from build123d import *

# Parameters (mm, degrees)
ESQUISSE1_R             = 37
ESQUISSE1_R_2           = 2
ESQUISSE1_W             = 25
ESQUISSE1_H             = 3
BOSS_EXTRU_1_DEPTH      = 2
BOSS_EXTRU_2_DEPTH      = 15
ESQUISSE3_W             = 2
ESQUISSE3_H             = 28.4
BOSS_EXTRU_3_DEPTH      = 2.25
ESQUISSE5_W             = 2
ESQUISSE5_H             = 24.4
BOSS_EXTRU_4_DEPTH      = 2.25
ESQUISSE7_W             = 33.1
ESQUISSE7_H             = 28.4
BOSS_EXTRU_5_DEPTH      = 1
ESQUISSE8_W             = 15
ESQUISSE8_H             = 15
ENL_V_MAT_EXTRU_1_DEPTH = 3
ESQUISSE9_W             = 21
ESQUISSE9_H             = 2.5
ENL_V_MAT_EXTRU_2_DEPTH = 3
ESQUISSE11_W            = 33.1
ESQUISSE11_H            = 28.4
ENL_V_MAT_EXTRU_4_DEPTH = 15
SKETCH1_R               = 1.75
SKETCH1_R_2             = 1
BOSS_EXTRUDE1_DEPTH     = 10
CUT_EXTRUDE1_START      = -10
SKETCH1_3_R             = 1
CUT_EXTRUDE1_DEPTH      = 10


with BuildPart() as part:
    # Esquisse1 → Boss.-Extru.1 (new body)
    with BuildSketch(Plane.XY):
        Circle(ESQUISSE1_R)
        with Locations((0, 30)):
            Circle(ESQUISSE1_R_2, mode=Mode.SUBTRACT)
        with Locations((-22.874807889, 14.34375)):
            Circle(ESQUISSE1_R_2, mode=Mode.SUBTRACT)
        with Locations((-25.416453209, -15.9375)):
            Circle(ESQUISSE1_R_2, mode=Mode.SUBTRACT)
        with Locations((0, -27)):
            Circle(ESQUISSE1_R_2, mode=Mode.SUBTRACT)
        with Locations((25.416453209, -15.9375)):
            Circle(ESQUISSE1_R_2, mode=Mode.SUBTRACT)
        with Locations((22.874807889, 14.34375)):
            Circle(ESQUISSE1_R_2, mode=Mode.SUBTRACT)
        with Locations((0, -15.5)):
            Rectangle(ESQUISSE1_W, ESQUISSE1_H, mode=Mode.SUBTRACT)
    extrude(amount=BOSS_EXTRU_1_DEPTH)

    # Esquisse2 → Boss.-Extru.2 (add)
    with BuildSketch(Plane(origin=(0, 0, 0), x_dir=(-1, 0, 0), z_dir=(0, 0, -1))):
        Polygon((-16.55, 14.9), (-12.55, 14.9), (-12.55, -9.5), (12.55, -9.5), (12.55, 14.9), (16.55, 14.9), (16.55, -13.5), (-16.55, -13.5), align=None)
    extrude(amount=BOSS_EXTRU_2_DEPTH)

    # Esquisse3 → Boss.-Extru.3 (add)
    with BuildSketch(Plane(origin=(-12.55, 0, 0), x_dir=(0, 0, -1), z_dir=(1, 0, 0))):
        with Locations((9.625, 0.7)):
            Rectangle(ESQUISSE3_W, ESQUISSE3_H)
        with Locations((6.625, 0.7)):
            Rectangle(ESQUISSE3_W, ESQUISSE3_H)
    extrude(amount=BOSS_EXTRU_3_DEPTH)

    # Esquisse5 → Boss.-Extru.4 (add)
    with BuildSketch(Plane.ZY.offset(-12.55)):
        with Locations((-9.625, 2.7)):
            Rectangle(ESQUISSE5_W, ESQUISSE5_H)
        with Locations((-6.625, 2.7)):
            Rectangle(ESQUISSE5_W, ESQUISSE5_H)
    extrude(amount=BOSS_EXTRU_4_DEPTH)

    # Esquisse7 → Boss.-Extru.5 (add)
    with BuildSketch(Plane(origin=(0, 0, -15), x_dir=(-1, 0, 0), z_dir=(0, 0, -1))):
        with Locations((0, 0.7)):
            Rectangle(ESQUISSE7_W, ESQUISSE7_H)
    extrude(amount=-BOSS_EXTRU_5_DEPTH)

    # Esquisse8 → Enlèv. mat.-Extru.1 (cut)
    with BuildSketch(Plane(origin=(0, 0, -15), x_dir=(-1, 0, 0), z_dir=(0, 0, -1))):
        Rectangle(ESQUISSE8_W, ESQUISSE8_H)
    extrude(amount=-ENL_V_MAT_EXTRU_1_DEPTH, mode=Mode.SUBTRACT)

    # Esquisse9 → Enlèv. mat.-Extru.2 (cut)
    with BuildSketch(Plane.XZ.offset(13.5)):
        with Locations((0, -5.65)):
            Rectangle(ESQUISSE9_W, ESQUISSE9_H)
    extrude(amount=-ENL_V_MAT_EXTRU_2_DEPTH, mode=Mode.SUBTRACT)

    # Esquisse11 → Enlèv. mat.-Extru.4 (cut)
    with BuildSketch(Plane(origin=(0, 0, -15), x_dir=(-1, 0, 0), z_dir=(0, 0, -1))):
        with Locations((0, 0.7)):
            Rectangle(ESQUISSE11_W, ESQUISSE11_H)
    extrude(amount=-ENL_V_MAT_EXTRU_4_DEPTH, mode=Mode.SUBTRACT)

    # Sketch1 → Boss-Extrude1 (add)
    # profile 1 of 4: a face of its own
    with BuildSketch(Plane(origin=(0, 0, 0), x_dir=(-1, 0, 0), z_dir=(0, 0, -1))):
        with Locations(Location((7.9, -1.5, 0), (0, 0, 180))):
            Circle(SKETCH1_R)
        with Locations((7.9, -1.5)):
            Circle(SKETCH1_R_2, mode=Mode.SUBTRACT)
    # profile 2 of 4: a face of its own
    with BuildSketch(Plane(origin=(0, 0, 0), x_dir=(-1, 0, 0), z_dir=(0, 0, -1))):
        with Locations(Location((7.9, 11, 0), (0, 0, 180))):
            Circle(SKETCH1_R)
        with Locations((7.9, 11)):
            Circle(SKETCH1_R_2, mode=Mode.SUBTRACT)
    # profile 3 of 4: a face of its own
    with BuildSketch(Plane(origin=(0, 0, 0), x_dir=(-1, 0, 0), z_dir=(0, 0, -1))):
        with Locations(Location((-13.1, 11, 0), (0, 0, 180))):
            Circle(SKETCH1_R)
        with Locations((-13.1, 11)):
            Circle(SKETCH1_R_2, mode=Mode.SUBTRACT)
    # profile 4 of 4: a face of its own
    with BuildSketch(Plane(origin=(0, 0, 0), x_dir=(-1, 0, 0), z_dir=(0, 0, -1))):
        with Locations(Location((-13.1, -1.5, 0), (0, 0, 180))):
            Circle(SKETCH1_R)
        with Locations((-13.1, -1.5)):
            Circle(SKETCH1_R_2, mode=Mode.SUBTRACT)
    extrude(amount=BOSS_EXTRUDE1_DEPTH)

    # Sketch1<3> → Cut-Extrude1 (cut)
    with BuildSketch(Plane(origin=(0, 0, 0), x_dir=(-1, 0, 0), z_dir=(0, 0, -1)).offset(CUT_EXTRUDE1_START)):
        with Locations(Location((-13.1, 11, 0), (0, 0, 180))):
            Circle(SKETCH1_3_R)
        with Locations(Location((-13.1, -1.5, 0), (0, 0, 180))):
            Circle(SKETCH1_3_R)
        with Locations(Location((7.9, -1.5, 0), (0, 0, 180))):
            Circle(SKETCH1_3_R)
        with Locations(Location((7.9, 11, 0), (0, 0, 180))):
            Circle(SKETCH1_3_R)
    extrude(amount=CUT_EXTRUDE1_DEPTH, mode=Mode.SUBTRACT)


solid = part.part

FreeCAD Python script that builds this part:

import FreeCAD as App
import Part
import Sketcher
from FreeCAD import Vector

doc = App.newDocument("Part")
body = doc.addObject("PartDesign::Body", "Body")

# Sketch on XY plane
sketch1 = body.newObject("Sketcher::SketchObject", "Sketch")
sketch1.AttachmentSupport = (doc.getObject("XY_Plane"), [""])
sketch1.MapMode = "FlatFace"
sketch1.addGeometry([
    Part.Circle(Vector(0, 0, 0), Vector(0, 0, 1), 37),  # 0
    Part.Circle(Vector(-25.4, -15.9, 0), Vector(0, 0, 1), 2),  # 1
    Part.LineSegment(Vector(12.5, -17, 0), Vector(-12.5, -17, 0)),  # 2
    Part.LineSegment(Vector(-12.5, -17, 0), Vector(-12.5, -14, 0)),  # 3
    Part.LineSegment(Vector(-12.5, -14, 0), Vector(12.5, -14, 0)),  # 4
    Part.LineSegment(Vector(12.5, -14, 0), Vector(12.5, -17, 0)),  # 5
    Part.Circle(Vector(0, -27, 0), Vector(0, 0, 1), 2),  # 6
    Part.Circle(Vector(25.4, -15.9, 0), Vector(0, 0, 1), 2),  # 7
    Part.Circle(Vector(-22.9, 14.3, 0), Vector(0, 0, 1), 2),  # 8
    Part.Circle(Vector(22.9, 14.3, 0), Vector(0, 0, 1), 2),  # 9
    Part.Circle(Vector(0, 30, 0), Vector(0, 0, 1), 2),  # 10
], False)
sketch1.addConstraint([
    Sketcher.Constraint("Coincident", 2, 2, 3, 1),
    Sketcher.Constraint("Coincident", 3, 2, 4, 1),
    Sketcher.Constraint("Coincident", 4, 2, 5, 1),
    Sketcher.Constraint("Coincident", 5, 2, 2, 1),
    Sketcher.Constraint("Horizontal", 2),
    Sketcher.Constraint("Vertical", 3),
    Sketcher.Constraint("Horizontal", 4),
    Sketcher.Constraint("Vertical", 5),
    Sketcher.Constraint("Coincident", 0, 3, -1, 1),
    Sketcher.Constraint("Equal", 1, 6),
    Sketcher.Constraint("Equal", 6, 7),
    Sketcher.Constraint("Equal", 7, 8),
    Sketcher.Constraint("Equal", 8, 9),
    Sketcher.Constraint("Equal", 9, 10),
    Sketcher.Constraint("Symmetric", 1, 3, 7, 3, -2),
    Sketcher.Constraint("Symmetric", 8, 3, 9, 3, -2),
    Sketcher.Constraint("PointOnObject", 6, 3, -2),
    Sketcher.Constraint("PointOnObject", 10, 3, -2),
    Sketcher.Constraint("Diameter", 0, 74.0),
    Sketcher.Constraint("Diameter", 1, 4.0),
    Sketcher.Constraint("DistanceX", 2, 2, 2, 1, 25.0),
    Sketcher.Constraint("DistanceY", 3, 1, 3, 2, 3.0),
    Sketcher.Constraint("DistanceY", 6, 3, -1, 1, 27.0),
    Sketcher.Constraint("DistanceY", -1, 1, 10, 3, 30.0),
    Sketcher.Constraint("DistanceY", 2, 2, -1, 1, 17.0),
    Sketcher.Constraint("DistanceX", 2, 2, -1, 1, 12.5),
    Sketcher.Constraint("DistanceY", 1, 3, -1, 1, 15.9375),
    Sketcher.Constraint("DistanceY", -1, 1, 8, 3, 14.34375),
    Sketcher.Constraint("DistanceX", 8, 3, 7, 3, 48.291261),
    Sketcher.Constraint("DistanceX", 1, 3, -1, 1, 25.416453),
])
pad1 = body.newObject("PartDesign::Pad", "Pad")
pad1.Profile = sketch1
pad1.Length = 2

# Sketch on XY plane
sketch2 = body.newObject("Sketcher::SketchObject", "Sketch001")
sketch2.AttachmentSupport = (doc.getObject("XY_Plane"), [""])
sketch2.MapMode = "FlatFace"
sketch2.addGeometry([
    Part.LineSegment(Vector(12.6, 14.9, 0), Vector(16.6, 14.9, 0)),  # 0
    Part.LineSegment(Vector(16.6, 14.9, 0), Vector(16.6, -13.5, 0)),  # 1
    Part.LineSegment(Vector(16.6, -13.5, 0), Vector(-16.6, -13.5, 0)),  # 2
    Part.LineSegment(Vector(-16.6, -13.5, 0), Vector(-16.6, 14.9, 0)),  # 3
    Part.LineSegment(Vector(-16.6, 14.9, 0), Vector(-12.6, 14.9, 0)),  # 4
    Part.LineSegment(Vector(-12.6, 14.9, 0), Vector(-12.6, -9.5, 0)),  # 5
    Part.LineSegment(Vector(-12.6, -9.5, 0), Vector(12.6, -9.5, 0)),  # 6
    Part.LineSegment(Vector(12.6, -9.5, 0), Vector(12.6, 14.9, 0)),  # 7
], False)
sketch2.addConstraint([
    Sketcher.Constraint("Coincident", 0, 2, 1, 1),
    Sketcher.Constraint("Coincident", 1, 2, 2, 1),
    Sketcher.Constraint("Coincident", 2, 2, 3, 1),
    Sketcher.Constraint("Coincident", 3, 2, 4, 1),
    Sketcher.Constraint("Coincident", 4, 2, 5, 1),
    Sketcher.Constraint("Coincident", 5, 2, 6, 1),
    Sketcher.Constraint("Coincident", 6, 2, 7, 1),
    Sketcher.Constraint("Coincident", 7, 2, 0, 1),
    Sketcher.Constraint("Horizontal", 0),
    Sketcher.Constraint("Vertical", 1),
    Sketcher.Constraint("Horizontal", 2),
    Sketcher.Constraint("Vertical", 3),
    Sketcher.Constraint("Horizontal", 4),
    Sketcher.Constraint("Vertical", 5),
    Sketcher.Constraint("Horizontal", 6),
    Sketcher.Constraint("Vertical", 7),
    Sketcher.Constraint("Symmetric", 0, 2, 3, 2, -2),
    Sketcher.Constraint("Equal", 0, 4),
    Sketcher.Constraint("DistanceX", 0, 1, 0, 2, 4.0),
    Sketcher.Constraint("DistanceX", 2, 2, 2, 1, 33.1),
    Sketcher.Constraint("DistanceY", 1, 2, 1, 1, 28.4),
    Sketcher.Constraint("DistanceY", 5, 2, 5, 1, 24.4),
    Sketcher.Constraint("DistanceY", -1, 1, 0, 2, 14.9),
])
pad2 = body.newObject("PartDesign::Pad", "Pad001")
pad2.Profile = sketch2
pad2.Length = 15
pad2.Reversed = True

# Sketch on YZ plane
sketch3 = body.newObject("Sketcher::SketchObject", "Sketch002")
sketch3.AttachmentSupport = (doc.getObject("YZ_Plane"), [""])
sketch3.MapMode = "FlatFace"
sketch3.AttachmentOffset = App.Placement(Vector(0, 0, -12.55), App.Rotation())
sketch3.addGeometry([
    Part.LineSegment(Vector(14.9, -8.6, 0), Vector(-13.5, -8.6, 0)),  # 0
    Part.LineSegment(Vector(-13.5, -8.6, 0), Vector(-13.5, -10.6, 0)),  # 1
    Part.LineSegment(Vector(-13.5, -10.6, 0), Vector(14.9, -10.6, 0)),  # 2
    Part.LineSegment(Vector(14.9, -10.6, 0), Vector(14.9, -8.6, 0)),  # 3
    Part.LineSegment(Vector(14.9, -5.6, 0), Vector(-13.5, -5.6, 0)),  # 4
    Part.LineSegment(Vector(-13.5, -5.6, 0), Vector(-13.5, -7.6, 0)),  # 5
    Part.LineSegment(Vector(-13.5, -7.6, 0), Vector(14.9, -7.6, 0)),  # 6
    Part.LineSegment(Vector(14.9, -7.6, 0), Vector(14.9, -5.6, 0)),  # 7
], False)
sketch3.addConstraint([
    Sketcher.Constraint("Coincident", 0, 2, 1, 1),
    Sketcher.Constraint("Coincident", 1, 2, 2, 1),
    Sketcher.Constraint("Coincident", 2, 2, 3, 1),
    Sketcher.Constraint("Coincident", 3, 2, 0, 1),
    Sketcher.Constraint("Coincident", 4, 2, 5, 1),
    Sketcher.Constraint("Coincident", 5, 2, 6, 1),
    Sketcher.Constraint("Coincident", 6, 2, 7, 1),
    Sketcher.Constraint("Coincident", 7, 2, 4, 1),
    Sketcher.Constraint("Horizontal", 0),
    Sketcher.Constraint("Vertical", 1),
    Sketcher.Constraint("Horizontal", 2),
    Sketcher.Constraint("Vertical", 3),
    Sketcher.Constraint("Horizontal", 4),
    Sketcher.Constraint("Vertical", 5),
    Sketcher.Constraint("Horizontal", 6),
    Sketcher.Constraint("Vertical", 7),
    Sketcher.Constraint("Vertical", 1, 2, 4, 2),
    Sketcher.Constraint("Vertical", 3, 2, 6, 2),
    Sketcher.Constraint("Equal", 3, 5),
    Sketcher.Constraint("DistanceY", 1, 2, 1, 1, 2.0),
    Sketcher.Constraint("DistanceX", 0, 2, 0, 1, 28.4),
    Sketcher.Constraint("DistanceY", 0, 2, 4, 2, 3.0),
    Sketcher.Constraint("DistanceX", 0, 2, -1, 1, 13.5),
    Sketcher.Constraint("DistanceY", 0, 2, -1, 1, 8.625),
])
pad3 = body.newObject("PartDesign::Pad", "Pad002")
pad3.Profile = sketch3
pad3.Length = 2.25

# Sketch on YZ plane
sketch4 = body.newObject("Sketcher::SketchObject", "Sketch003")
sketch4.AttachmentSupport = (doc.getObject("YZ_Plane"), [""])
sketch4.MapMode = "FlatFace"
sketch4.AttachmentOffset = App.Placement(Vector(0, 0, 12.55), App.Rotation())
sketch4.addGeometry([
    Part.LineSegment(Vector(14.9, -10.6, 0), Vector(-9.5, -10.6, 0)),  # 0
    Part.LineSegment(Vector(-9.5, -10.6, 0), Vector(-9.5, -8.6, 0)),  # 1
    Part.LineSegment(Vector(-9.5, -8.6, 0), Vector(14.9, -8.6, 0)),  # 2
    Part.LineSegment(Vector(14.9, -8.6, 0), Vector(14.9, -10.6, 0)),  # 3
    Part.LineSegment(Vector(14.9, -7.6, 0), Vector(-9.5, -7.6, 0)),  # 4
    Part.LineSegment(Vector(-9.5, -7.6, 0), Vector(-9.5, -5.6, 0)),  # 5
    Part.LineSegment(Vector(-9.5, -5.6, 0), Vector(14.9, -5.6, 0)),  # 6
    Part.LineSegment(Vector(14.9, -5.6, 0), Vector(14.9, -7.6, 0)),  # 7
], False)
sketch4.addConstraint([
    Sketcher.Constraint("Coincident", 0, 2, 1, 1),
    Sketcher.Constraint("Coincident", 1, 2, 2, 1),
    Sketcher.Constraint("Coincident", 2, 2, 3, 1),
    Sketcher.Constraint("Coincident", 3, 2, 0, 1),
    Sketcher.Constraint("Coincident", 4, 2, 5, 1),
    Sketcher.Constraint("Coincident", 5, 2, 6, 1),
    Sketcher.Constraint("Coincident", 6, 2, 7, 1),
    Sketcher.Constraint("Coincident", 7, 2, 4, 1),
    Sketcher.Constraint("Horizontal", 0),
    Sketcher.Constraint("Vertical", 1),
    Sketcher.Constraint("Horizontal", 2),
    Sketcher.Constraint("Vertical", 3),
    Sketcher.Constraint("Horizontal", 4),
    Sketcher.Constraint("Vertical", 5),
    Sketcher.Constraint("Horizontal", 6),
    Sketcher.Constraint("Vertical", 7),
    Sketcher.Constraint("Vertical", 1, 2, 4, 2),
    Sketcher.Constraint("Vertical", 3, 2, 6, 2),
    Sketcher.Constraint("Equal", 3, 5),
    Sketcher.Constraint("DistanceY", 1, 1, 1, 2, 2.0),
    Sketcher.Constraint("DistanceX", 0, 2, 0, 1, 24.4),
    Sketcher.Constraint("DistanceY", 1, 2, 4, 2, 1.0),
    Sketcher.Constraint("DistanceX", 0, 2, -1, 1, 9.5),
    Sketcher.Constraint("DistanceY", 0, 2, -1, 1, 10.625),
])
pad4 = body.newObject("PartDesign::Pad", "Pad003")
pad4.Profile = sketch4
pad4.Length = 2.25
pad4.Reversed = True

# Sketch on XY plane
sketch5 = body.newObject("Sketcher::SketchObject", "Sketch004")
sketch5.AttachmentSupport = (doc.getObject("XY_Plane"), [""])
sketch5.MapMode = "FlatFace"
sketch5.AttachmentOffset = App.Placement(Vector(0, 0, -15), App.Rotation())
sketch5.addGeometry([
    Part.LineSegment(Vector(17, 15, 0), Vector(17, -14, 0)),
    Part.LineSegment(Vector(17, -14, 0), Vector(-17, -14, 0)),
    Part.LineSegment(Vector(-17, -14, 0), Vector(-17, 15, 0)),
    Part.LineSegment(Vector(-17, 15, 0), Vector(17, 15, 0)),
], False)
sketch5.addConstraint([
    Sketcher.Constraint("Coincident", 0, 2, 1, 1),
    Sketcher.Constraint("Coincident", 1, 2, 2, 1),
    Sketcher.Constraint("Coincident", 2, 2, 3, 1),
    Sketcher.Constraint("Coincident", 3, 2, 0, 1),
    Sketcher.Constraint("Vertical", 0),
    Sketcher.Constraint("Horizontal", 1),
    Sketcher.Constraint("Vertical", 2),
    Sketcher.Constraint("Horizontal", 3),
    Sketcher.Constraint("DistanceX", 1, 2, 1, 1, 33.1),
    Sketcher.Constraint("DistanceY", 0, 2, 0, 1, 28.4),
    Sketcher.Constraint("DistanceY", 0, 2, -1, 1, 13.5),
    Sketcher.Constraint("DistanceX", -1, 1, 0, 2, 16.55),
])
pad5 = body.newObject("PartDesign::Pad", "Pad004")
pad5.Profile = sketch5
pad5.Length = 1

# Sketch on XY plane
sketch6 = body.newObject("Sketcher::SketchObject", "Sketch005")
sketch6.AttachmentSupport = (doc.getObject("XY_Plane"), [""])
sketch6.MapMode = "FlatFace"
sketch6.AttachmentOffset = App.Placement(Vector(0, 0, -15), App.Rotation())
sketch6.addGeometry([
    Part.LineSegment(Vector(8, 8, 0), Vector(8, -8, 0)),
    Part.LineSegment(Vector(8, -8, 0), Vector(-8, -8, 0)),
    Part.LineSegment(Vector(-8, -8, 0), Vector(-8, 8, 0)),
    Part.LineSegment(Vector(-8, 8, 0), Vector(8, 8, 0)),
], False)
sketch6.addConstraint([
    Sketcher.Constraint("Coincident", 0, 2, 1, 1),
    Sketcher.Constraint("Coincident", 1, 2, 2, 1),
    Sketcher.Constraint("Coincident", 2, 2, 3, 1),
    Sketcher.Constraint("Coincident", 3, 2, 0, 1),
    Sketcher.Constraint("Vertical", 0),
    Sketcher.Constraint("Horizontal", 1),
    Sketcher.Constraint("Vertical", 2),
    Sketcher.Constraint("Horizontal", 3),
    Sketcher.Constraint("Symmetric", 0, 2, 2, 2, -1, 1),
    Sketcher.Constraint("Equal", 3, 0),
    Sketcher.Constraint("DistanceX", 1, 2, 1, 1, 15.0),
])
pocket1 = body.newObject("PartDesign::Pocket", "Pocket")
pocket1.Profile = sketch6
pocket1.Length = 3
pocket1.Reversed = True

# Sketch on XZ plane
sketch7 = body.newObject("Sketcher::SketchObject", "Sketch006")
sketch7.AttachmentSupport = (doc.getObject("XZ_Plane"), [""])
sketch7.MapMode = "FlatFace"
sketch7.AttachmentOffset = App.Placement(Vector(0, 0, 13.5), App.Rotation())
sketch7.addGeometry([
    Part.LineSegment(Vector(-10.5, -4.4, 0), Vector(-10.5, -6.9, 0)),
    Part.LineSegment(Vector(-10.5, -6.9, 0), Vector(10.5, -6.9, 0)),
    Part.LineSegment(Vector(10.5, -6.9, 0), Vector(10.5, -4.4, 0)),
    Part.LineSegment(Vector(10.5, -4.4, 0), Vector(-10.5, -4.4, 0)),
], False)
sketch7.addConstraint([
    Sketcher.Constraint("Coincident", 0, 2, 1, 1),
    Sketcher.Constraint("Coincident", 1, 2, 2, 1),
    Sketcher.Constraint("Coincident", 2, 2, 3, 1),
    Sketcher.Constraint("Coincident", 3, 2, 0, 1),
    Sketcher.Constraint("Vertical", 0),
    Sketcher.Constraint("Horizontal", 1),
    Sketcher.Constraint("Vertical", 2),
    Sketcher.Constraint("Horizontal", 3),
    Sketcher.Constraint("DistanceX", 1, 1, 1, 2, 21.0),
    Sketcher.Constraint("DistanceY", 0, 2, 0, 1, 2.5),
    Sketcher.Constraint("DistanceX", 0, 2, -1, 1, 10.5),
    Sketcher.Constraint("DistanceY", 0, 2, -1, 1, 6.9),
])
pocket2 = body.newObject("PartDesign::Pocket", "Pocket001")
pocket2.Profile = sketch7
pocket2.Length = 3

# Sketch on XY plane
sketch8 = body.newObject("Sketcher::SketchObject", "Sketch007")
sketch8.AttachmentSupport = (doc.getObject("XY_Plane"), [""])
sketch8.MapMode = "FlatFace"
sketch8.AttachmentOffset = App.Placement(Vector(0, 0, -15), App.Rotation())
sketch8.addGeometry([
    Part.LineSegment(Vector(17, 15, 0), Vector(17, -14, 0)),
    Part.LineSegment(Vector(17, -14, 0), Vector(-17, -14, 0)),
    Part.LineSegment(Vector(-17, -14, 0), Vector(-17, 15, 0)),
    Part.LineSegment(Vector(-17, 15, 0), Vector(17, 15, 0)),
], False)
sketch8.addConstraint([
    Sketcher.Constraint("Coincident", 0, 2, 1, 1),
    Sketcher.Constraint("Coincident", 1, 2, 2, 1),
    Sketcher.Constraint("Coincident", 2, 2, 3, 1),
    Sketcher.Constraint("Coincident", 3, 2, 0, 1),
    Sketcher.Constraint("Vertical", 0),
    Sketcher.Constraint("Horizontal", 1),
    Sketcher.Constraint("Vertical", 2),
    Sketcher.Constraint("Horizontal", 3),
    Sketcher.Constraint("DistanceX", 1, 2, 1, 1, 33.1),
    Sketcher.Constraint("DistanceY", 0, 2, 0, 1, 28.4),
    Sketcher.Constraint("DistanceY", 0, 2, -1, 1, 13.5),
    Sketcher.Constraint("DistanceX", -1, 1, 0, 2, 16.55),
])
pocket3 = body.newObject("PartDesign::Pocket", "Pocket002")
pocket3.Profile = sketch8
pocket3.Length = 15
pocket3.Reversed = True

# Sketch on XY plane
sketch9 = body.newObject("Sketcher::SketchObject", "Sketch008")
sketch9.AttachmentSupport = (doc.getObject("XY_Plane"), [""])
sketch9.MapMode = "FlatFace"
sketch9.addGeometry([
    Part.Circle(Vector(-7.9, -1.5, 0), Vector(0, 0, 1), 1.8),  # 0
    Part.Circle(Vector(-7.9, -1.5, 0), Vector(0, 0, 1), 1),  # 1
    Part.Circle(Vector(-7.9, 11, 0), Vector(0, 0, 1), 1.8),  # 2
    Part.Circle(Vector(-7.9, 11, 0), Vector(0, 0, 1), 1),  # 3
    Part.Circle(Vector(13.1, 11, 0), Vector(0, 0, 1), 1.8),  # 4
    Part.Circle(Vector(13.1, 11, 0), Vector(0, 0, 1), 1),  # 5
    Part.Circle(Vector(13.1, -1.5, 0), Vector(0, 0, 1), 1.8),  # 6
    Part.Circle(Vector(13.1, -1.5, 0), Vector(0, 0, 1), 1),  # 7
], False)
sketch9.addConstraint([
    Sketcher.Constraint("Coincident", 1, 3, 0, 3),
    Sketcher.Constraint("Coincident", 3, 3, 2, 3),
    Sketcher.Constraint("Coincident", 5, 3, 4, 3),
    Sketcher.Constraint("Coincident", 7, 3, 6, 3),
    Sketcher.Constraint("Equal", 0, 2),
    Sketcher.Constraint("Equal", 1, 3),
    Sketcher.Constraint("Equal", 2, 4),
    Sketcher.Constraint("Equal", 3, 5),
    Sketcher.Constraint("Equal", 4, 6),
    Sketcher.Constraint("Equal", 5, 7),
    Sketcher.Constraint("Horizontal", 3, 3, 4, 3),
    Sketcher.Constraint("Horizontal", 1, 3, 6, 3),
    Sketcher.Constraint("Vertical", 1, 3, 2, 3),
    Sketcher.Constraint("Vertical", 5, 3, 6, 3),
    Sketcher.Constraint("Diameter", 1, 2.0),
    Sketcher.Constraint("Diameter", 0, 3.5),
    Sketcher.Constraint("DistanceY", -1, 1, 2, 3, 11.0),
    Sketcher.Constraint("DistanceX", 2, 3, 4, 3, 21.0),
    Sketcher.Constraint("DistanceX", 0, 3, -1, 1, 7.9),
    Sketcher.Constraint("DistanceY", 0, 3, -1, 1, 1.5),
])
pad6 = body.newObject("PartDesign::Pad", "Pad005")
pad6.Profile = sketch9
pad6.Length = 10
pad6.Reversed = True

# Sketch on XY plane
sketch10 = body.newObject("Sketcher::SketchObject", "Sketch009")
sketch10.AttachmentSupport = (doc.getObject("XY_Plane"), [""])
sketch10.MapMode = "FlatFace"
sketch10.AttachmentOffset = App.Placement(Vector(0, 0, 10), App.Rotation())
sketch10.addGeometry([
    Part.Circle(Vector(13.1, 11, 0), Vector(0, 0, 1), 1),
    Part.Circle(Vector(13.1, -1.5, 0), Vector(0, 0, 1), 1),
    Part.Circle(Vector(-7.9, -1.5, 0), Vector(0, 0, 1), 1),
    Part.Circle(Vector(-7.9, 11, 0), Vector(0, 0, 1), 1),
], False)
sketch10.addConstraint([
    Sketcher.Constraint("Equal", 0, 1),
    Sketcher.Constraint("Equal", 1, 2),
    Sketcher.Constraint("Equal", 2, 3),
    Sketcher.Constraint("Horizontal", 1, 3, 2, 3),
    Sketcher.Constraint("Horizontal", 0, 3, 3, 3),
    Sketcher.Constraint("Vertical", 0, 3, 1, 3),
    Sketcher.Constraint("Vertical", 2, 3, 3, 3),
    Sketcher.Constraint("Diameter", 0, 2.0),
    Sketcher.Constraint("DistanceY", -1, 1, 0, 3, 11.0),
    Sketcher.Constraint("DistanceX", 2, 3, 1, 3, 21.0),
    Sketcher.Constraint("DistanceX", -1, 1, 0, 3, 13.1),
    Sketcher.Constraint("DistanceY", 1, 3, -1, 1, 1.5),
])
pocket4 = body.newObject("PartDesign::Pocket", "Pocket003")
pocket4.Profile = sketch10
pocket4.Length = 10

doc.recompute()
